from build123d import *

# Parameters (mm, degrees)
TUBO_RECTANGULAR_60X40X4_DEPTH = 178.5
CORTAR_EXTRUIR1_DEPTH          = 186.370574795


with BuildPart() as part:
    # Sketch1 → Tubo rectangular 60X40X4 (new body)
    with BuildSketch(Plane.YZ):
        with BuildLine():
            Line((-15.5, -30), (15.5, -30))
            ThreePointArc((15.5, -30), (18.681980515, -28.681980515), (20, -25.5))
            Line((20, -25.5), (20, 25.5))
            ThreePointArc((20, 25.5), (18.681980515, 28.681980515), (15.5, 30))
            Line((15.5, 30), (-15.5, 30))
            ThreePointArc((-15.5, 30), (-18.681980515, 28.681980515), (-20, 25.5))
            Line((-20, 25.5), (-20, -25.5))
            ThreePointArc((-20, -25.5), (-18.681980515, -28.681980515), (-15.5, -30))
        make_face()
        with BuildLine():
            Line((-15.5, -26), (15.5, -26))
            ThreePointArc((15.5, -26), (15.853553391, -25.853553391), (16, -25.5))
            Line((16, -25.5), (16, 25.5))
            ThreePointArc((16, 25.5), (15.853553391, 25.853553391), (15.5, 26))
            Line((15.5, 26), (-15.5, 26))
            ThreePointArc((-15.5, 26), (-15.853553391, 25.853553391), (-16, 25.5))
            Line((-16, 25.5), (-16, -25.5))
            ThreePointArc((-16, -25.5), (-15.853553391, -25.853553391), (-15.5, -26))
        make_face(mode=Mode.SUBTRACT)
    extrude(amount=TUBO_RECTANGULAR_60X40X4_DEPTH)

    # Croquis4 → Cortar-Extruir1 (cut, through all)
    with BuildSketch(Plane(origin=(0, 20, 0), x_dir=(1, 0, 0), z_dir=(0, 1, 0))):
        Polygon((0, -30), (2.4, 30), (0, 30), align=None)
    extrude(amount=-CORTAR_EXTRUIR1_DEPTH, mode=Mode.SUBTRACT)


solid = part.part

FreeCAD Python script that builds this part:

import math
import FreeCAD as App
import Part
import Sketcher

doc = App.newDocument("Part")
body = doc.addObject("PartDesign::Body", "Body")

sketch1 = doc.addObject("Sketcher::SketchObject", "Sketch")
body.addObject(sketch1)
sketch1.AttachmentSupport = (doc.YZ_Plane, [""])
sketch1.MapMode = "FlatFace"
sketch1.addGeometry([
    Part.LineSegment(App.Vector(-15.5, -30, 0), App.Vector(15.5, -30, 0)),
    Part.ArcOfCircle(Part.Circle(App.Vector(15.5, -25.5, 0), App.Vector(0, 0, 1), 4.5), math.radians(-90), math.radians(0)),
    Part.LineSegment(App.Vector(20, -25.5, 0), App.Vector(20, 25.5, 0)),
    Part.ArcOfCircle(Part.Circle(App.Vector(15.5, 25.5, 0), App.Vector(0, 0, 1), 4.5), math.radians(0), math.radians(90)),
    Part.LineSegment(App.Vector(15.5, 30, 0), App.Vector(-15.5, 30, 0)),
    Part.ArcOfCircle(Part.Circle(App.Vector(-15.5, 25.5, 0), App.Vector(0, 0, 1), 4.5), math.radians(90), math.radians(180)),
    Part.LineSegment(App.Vector(-20, 25.5, 0), App.Vector(-20, -25.5, 0)),
    Part.ArcOfCircle(Part.Circle(App.Vector(-15.5, -25.5, 0), App.Vector(0, 0, 1), 4.5), math.radians(-180), math.radians(-90)),
    Part.LineSegment(App.Vector(15.5, -26, 0), App.Vector(-15.5, -26, 0)),
    Part.ArcOfCircle(Part.Circle(App.Vector(-15.5, -25.5, 0), App.Vector(0, 0, 1), 0.5), math.radians(180), math.radians(270)),
    Part.LineSegment(App.Vector(-16, -25.5, 0), App.Vector(-16, 25.5, 0)),
    Part.ArcOfCircle(Part.Circle(App.Vector(-15.5, 25.5, 0), App.Vector(0, 0, 1), 0.5), math.radians(90), math.radians(180)),
    Part.LineSegment(App.Vector(-15.5, 26, 0), App.Vector(15.5, 26, 0)),
    Part.ArcOfCircle(Part.Circle(App.Vector(15.5, 25.5, 0), App.Vector(0, 0, 1), 0.5), math.radians(0), math.radians(90)),
    Part.LineSegment(App.Vector(16, 25.5, 0), App.Vector(16, -25.5, 0)),
    Part.ArcOfCircle(Part.Circle(App.Vector(15.5, -25.5, 0), App.Vector(0, 0, 1), 0.5), math.radians(-90), math.radians(0)),
], False)
sketch1.addConstraint([
    Sketcher.Constraint("Tangent", 0, 2, 1, 1),
    Sketcher.Constraint("Tangent", 1, 2, 2, 1),
    Sketcher.Constraint("Tangent", 2, 2, 3, 1),
    Sketcher.Constraint("Tangent", 3, 2, 4, 1),
    Sketcher.Constraint("Tangent", 4, 2, 5, 1),
    Sketcher.Constraint("Tangent", 5, 2, 6, 1),
    Sketcher.Constraint("Tangent", 6, 2, 7, 1),
    Sketcher.Constraint("Tangent", 7, 2, 0, 1),
    Sketcher.Constraint("Tangent", 8, 2, 9, 2),
    Sketcher.Constraint("Tangent", 9, 1, 10, 1),
    Sketcher.Constraint("Tangent", 10, 2, 11, 2),
    Sketcher.Constraint("Tangent", 11, 1, 12, 1),
    Sketcher.Constraint("Tangent", 12, 2, 13, 2),
    Sketcher.Constraint("Tangent", 13, 1, 14, 1),
    Sketcher.Constraint("Tangent", 14, 2, 15, 2),
    Sketcher.Constraint("Tangent", 15, 1, 8, 1),
    Sketcher.Constraint("Horizontal", 0),
    Sketcher.Constraint("Vertical", 2),
    Sketcher.Constraint("Horizontal", 4),
    Sketcher.Constraint("Vertical", 6),
    Sketcher.Constraint("Horizontal", 8),
    Sketcher.Constraint("Vertical", 10),
    Sketcher.Constraint("Horizontal", 12),
    Sketcher.Constraint("Vertical", 14),
    Sketcher.Constraint("Coincident", 9, 3, 7, 3),
    Sketcher.Constraint("Coincident", 11, 3, 5, 3),
    Sketcher.Constraint("Coincident", 13, 3, 3, 3),
    Sketcher.Constraint("Equal", 1, 3),
    Sketcher.Constraint("Equal", 3, 5),
    Sketcher.Constraint("Equal", 5, 7),
    Sketcher.Constraint("Equal", 13, 15),
    Sketcher.Constraint("Symmetric", 1, 3, 5, 3, -1, 1),
    Sketcher.Constraint("Radius", 1, 4.5),
    Sketcher.Constraint("Radius", 9, 0.5),
    Sketcher.Constraint("DistanceX", 0, 1, 0, 2, 31.0),
    Sketcher.Constraint("DistanceY", 2, 1, 2, 2, 51.0),
])
pad1 = doc.addObject("PartDesign::Pad", "Pad")
body.addObject(pad1)
pad1.Profile = sketch1
pad1.Length = 178.5

sketch2 = doc.addObject("Sketcher::SketchObject", "Sketch001")
body.addObject(sketch2)
sketch2.AttachmentSupport = (doc.XZ_Plane, [""])
sketch2.MapMode = "FlatFace"
sketch2.AttachmentOffset = App.Placement(App.Vector(0, 0, -20), App.Rotation())
sketch2.addGeometry([
    Part.LineSegment(App.Vector(0, 30, 0), App.Vector(2.4, -30, 0)),
    Part.LineSegment(App.Vector(2.4, -30, 0), App.Vector(0, -30, 0)),
    Part.LineSegment(App.Vector(0, -30, 0), App.Vector(0, 30, 0)),
], False)
sketch2.addConstraint([
    Sketcher.Constraint("Coincident", 0, 2, 1, 1),
    Sketcher.Constraint("Coincident", 1, 2, 2, 1),
    Sketcher.Constraint("Coincident", 2, 2, 0, 1),
    Sketcher.Constraint("Horizontal", 1),
    Sketcher.Constraint("Vertical", 2),
    Sketcher.Constraint("Symmetric", 1, 2, 2, 2, -1, 1),
    Sketcher.Constraint("DistanceY", 2, 1, 2, 2, 60.0),
    Sketcher.Constraint("DistanceX", 1, 2, 1, 1, 2.4),
])
pocket1 = doc.addObject("PartDesign::Pocket", "Pocket")
body.addObject(pocket1)
pocket1.Profile = sketch2
pocket1.Type = "ThroughAll"
pocket1.Reversed = True

doc.recompute()
